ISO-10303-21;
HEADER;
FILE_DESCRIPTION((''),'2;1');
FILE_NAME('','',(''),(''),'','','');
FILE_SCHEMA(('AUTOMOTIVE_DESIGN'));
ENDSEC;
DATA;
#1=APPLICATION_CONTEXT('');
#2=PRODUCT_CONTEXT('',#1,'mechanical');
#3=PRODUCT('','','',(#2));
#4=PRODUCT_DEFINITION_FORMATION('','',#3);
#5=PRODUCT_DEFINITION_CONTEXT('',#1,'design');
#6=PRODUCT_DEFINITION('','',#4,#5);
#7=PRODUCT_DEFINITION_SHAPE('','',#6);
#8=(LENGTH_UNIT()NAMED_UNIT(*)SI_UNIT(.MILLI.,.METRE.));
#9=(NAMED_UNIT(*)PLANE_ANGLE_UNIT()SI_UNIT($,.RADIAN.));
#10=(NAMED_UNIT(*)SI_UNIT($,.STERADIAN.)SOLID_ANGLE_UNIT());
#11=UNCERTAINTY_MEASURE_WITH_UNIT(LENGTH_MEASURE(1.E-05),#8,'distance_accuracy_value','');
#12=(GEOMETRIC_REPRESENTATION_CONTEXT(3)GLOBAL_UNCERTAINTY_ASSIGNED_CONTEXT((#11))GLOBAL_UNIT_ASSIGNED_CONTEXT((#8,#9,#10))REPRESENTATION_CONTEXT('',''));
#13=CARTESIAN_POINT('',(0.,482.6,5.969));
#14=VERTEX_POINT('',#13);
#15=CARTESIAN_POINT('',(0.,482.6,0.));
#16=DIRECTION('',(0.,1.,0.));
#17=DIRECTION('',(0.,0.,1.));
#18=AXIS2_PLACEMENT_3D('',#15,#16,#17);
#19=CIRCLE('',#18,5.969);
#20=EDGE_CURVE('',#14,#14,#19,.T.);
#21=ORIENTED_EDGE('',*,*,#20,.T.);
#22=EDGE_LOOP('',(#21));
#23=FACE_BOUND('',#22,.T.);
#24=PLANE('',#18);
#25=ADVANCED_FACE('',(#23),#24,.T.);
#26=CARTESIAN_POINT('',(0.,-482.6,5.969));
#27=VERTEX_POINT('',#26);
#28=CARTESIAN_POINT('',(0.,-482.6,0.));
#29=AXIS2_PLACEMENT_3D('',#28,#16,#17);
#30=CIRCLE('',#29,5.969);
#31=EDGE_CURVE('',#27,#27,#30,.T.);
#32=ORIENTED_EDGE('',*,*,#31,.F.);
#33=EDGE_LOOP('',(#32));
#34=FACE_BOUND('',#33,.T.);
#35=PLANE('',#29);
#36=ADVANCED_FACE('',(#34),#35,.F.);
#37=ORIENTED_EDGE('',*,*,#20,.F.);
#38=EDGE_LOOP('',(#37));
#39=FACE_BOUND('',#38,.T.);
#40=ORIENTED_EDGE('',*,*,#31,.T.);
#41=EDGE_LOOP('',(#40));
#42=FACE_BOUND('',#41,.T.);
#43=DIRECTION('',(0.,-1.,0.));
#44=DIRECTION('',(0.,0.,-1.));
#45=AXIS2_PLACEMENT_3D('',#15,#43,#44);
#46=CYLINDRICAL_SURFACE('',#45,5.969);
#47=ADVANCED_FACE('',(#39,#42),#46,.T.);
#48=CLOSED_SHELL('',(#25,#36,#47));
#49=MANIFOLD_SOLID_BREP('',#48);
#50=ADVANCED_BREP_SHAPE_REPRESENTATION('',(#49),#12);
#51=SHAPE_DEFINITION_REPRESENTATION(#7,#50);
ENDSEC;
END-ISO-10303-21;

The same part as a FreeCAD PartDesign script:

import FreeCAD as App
import Part
import Sketcher

V = App.Vector
Q = App.Units.Quantity

doc = App.newDocument("Part")
body = doc.addObject("PartDesign::Body", "Body")

# Sketch on XZ plane
sketch1 = body.newObject("Sketcher::SketchObject", "Sketch")
sketch1.AttachmentSupport = (doc.getObject("XZ_Plane"), [""])
sketch1.MapMode = "FlatFace"
sketch1.addGeometry(Part.Circle(V(0, 0, 0), V(0, 0, 1), 6), False)
sketch1.addConstraint([
    Sketcher.Constraint("Coincident", 0, 3, -1, 1),
    Sketcher.Constraint("Diameter", 0, Q("0.47 in")),
])
pad1 = body.newObject("PartDesign::Pad", "Pad")
pad1.Profile = sketch1
pad1.Length = Q("38 in")
pad1.Midplane = True

doc.recompute()
